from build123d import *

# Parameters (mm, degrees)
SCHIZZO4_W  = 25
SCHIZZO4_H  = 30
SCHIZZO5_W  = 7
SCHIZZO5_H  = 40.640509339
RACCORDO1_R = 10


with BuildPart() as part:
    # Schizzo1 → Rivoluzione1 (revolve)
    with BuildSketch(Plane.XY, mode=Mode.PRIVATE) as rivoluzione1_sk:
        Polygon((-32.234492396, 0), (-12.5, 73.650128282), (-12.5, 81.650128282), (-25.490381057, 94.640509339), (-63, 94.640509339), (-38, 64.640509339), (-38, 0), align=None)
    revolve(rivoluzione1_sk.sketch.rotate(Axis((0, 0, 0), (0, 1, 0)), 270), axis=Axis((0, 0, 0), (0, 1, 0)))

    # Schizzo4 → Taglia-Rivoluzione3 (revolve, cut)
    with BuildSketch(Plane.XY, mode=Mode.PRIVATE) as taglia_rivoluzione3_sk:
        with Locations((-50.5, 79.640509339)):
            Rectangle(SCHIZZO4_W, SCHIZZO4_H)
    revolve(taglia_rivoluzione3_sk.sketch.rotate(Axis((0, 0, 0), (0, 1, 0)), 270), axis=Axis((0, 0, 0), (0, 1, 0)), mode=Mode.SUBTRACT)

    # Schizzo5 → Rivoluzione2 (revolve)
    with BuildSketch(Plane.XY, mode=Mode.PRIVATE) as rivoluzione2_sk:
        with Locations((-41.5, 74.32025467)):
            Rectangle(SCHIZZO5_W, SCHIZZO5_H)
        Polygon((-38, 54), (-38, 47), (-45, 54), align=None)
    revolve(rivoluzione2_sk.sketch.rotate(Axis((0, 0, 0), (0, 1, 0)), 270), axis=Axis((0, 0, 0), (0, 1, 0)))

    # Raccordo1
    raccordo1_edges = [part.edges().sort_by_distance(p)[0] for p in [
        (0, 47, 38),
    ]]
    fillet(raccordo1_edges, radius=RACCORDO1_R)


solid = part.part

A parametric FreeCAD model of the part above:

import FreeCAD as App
import Part
import Sketcher

V = App.Vector
Q = App.Units.Quantity


def edges_at(feature, points):
    """Names of the edges that pass closest to the given points."""
    edges = feature.Shape.Edges
    near = lambda p: min(range(len(edges)), key=lambda i: edges[i].distToShape(Part.Vertex(*p))[0])
    return sorted({f"Edge{near(p) + 1}" for p in points})

doc = App.newDocument("Part")
body = doc.addObject("PartDesign::Body", "Body")

# Sketch on XY plane
sketch1 = body.newObject("Sketcher::SketchObject", "Sketch")
sketch1.AttachmentSupport = (doc.getObject("XY_Plane"), [""])
sketch1.MapMode = "FlatFace"
sketch1.addGeometry(Part.LineSegment(V(-32, 0, 0), V(-12, 74, 0)), False)
sketch1.addGeometry(Part.LineSegment(V(-12, 74, 0), V(-12, 82, 0)), False)
sketch1.addGeometry(Part.LineSegment(V(-12, 82, 0), V(-25, 95, 0)), False)
sketch1.addGeometry(Part.LineSegment(V(-25, 95, 0), V(-63, 95, 0)), False)
sketch1.addGeometry(Part.LineSegment(V(-63, 95, 0), V(-38, 65, 0)), False)
sketch1.addGeometry(Part.LineSegment(V(-38, 65, 0), V(-38, 0, 0)), False)
sketch1.addGeometry(Part.LineSegment(V(-38, 0, 0), V(-32, 0, 0)), False)
sketch1.addConstraint(Sketcher.Constraint("Coincident", 0, 2, 1, 1))
sketch1.addConstraint(Sketcher.Constraint("Coincident", 1, 2, 2, 1))
sketch1.addConstraint(Sketcher.Constraint("Coincident", 2, 2, 3, 1))
sketch1.addConstraint(Sketcher.Constraint("Coincident", 3, 2, 4, 1))
sketch1.addConstraint(Sketcher.Constraint("Coincident", 4, 2, 5, 1))
sketch1.addConstraint(Sketcher.Constraint("Coincident", 5, 2, 6, 1))
sketch1.addConstraint(Sketcher.Constraint("Coincident", 6, 2, 0, 1))
sketch1.addConstraint(Sketcher.Constraint("Vertical", 1))
sketch1.addConstraint(Sketcher.Constraint("Horizontal", 3))
sketch1.addConstraint(Sketcher.Constraint("Vertical", 5))
sketch1.addConstraint(Sketcher.Constraint("Horizontal", 6))
sketch1.addConstraint(Sketcher.Constraint("PointOnObject", 5, 2, -1))
sketch1.addConstraint(Sketcher.Constraint("DistanceY", 1, 1, 1, 2, 8.0))
sketch1.addConstraint(Sketcher.Constraint("Angle", 0, Q("75 deg")))
sketch1.addConstraint(Sketcher.Constraint("Angle", 2, Q("135 deg")))
sketch1.addConstraint(Sketcher.Constraint("DistanceX", 3, 2, -1, 1, 63.0))
sketch1.addConstraint(Sketcher.Constraint("DistanceX", 4, 2, -1, 1, 38.0))
sketch1.addConstraint(Sketcher.Constraint("DistanceY", 4, 2, 2, 2, 30.0))
sketch1.addConstraint(Sketcher.Constraint("DistanceX", 0, 2, -1, 1, 12.5))
sketch1.addConstraint(Sketcher.Constraint("DistanceX", 3, 2, 3, 1, 37.509619))
sketch1.addConstraint(Sketcher.Constraint("DistanceY", 5, 2, 5, 1, 64.640509))
revolution = body.newObject("PartDesign::Revolution", "Revolution")
revolution.Profile = sketch1
revolution.ReferenceAxis = (sketch1, ["V_Axis"])
revolution.Angle = 360

# Sketch on XY plane
sketch2 = body.newObject("Sketcher::SketchObject", "Sketch001")
sketch2.AttachmentSupport = (doc.getObject("XY_Plane"), [""])
sketch2.MapMode = "FlatFace"
sketch2.addGeometry(Part.LineSegment(V(-63, 95, 0), V(-63, 65, 0)), False)
sketch2.addGeometry(Part.LineSegment(V(-63, 65, 0), V(-38, 65, 0)), False)
sketch2.addGeometry(Part.LineSegment(V(-38, 65, 0), V(-38, 95, 0)), False)
sketch2.addGeometry(Part.LineSegment(V(-38, 95, 0), V(-63, 95, 0)), False)
sketch2.addConstraint(Sketcher.Constraint("Coincident", 0, 2, 1, 1))
sketch2.addConstraint(Sketcher.Constraint("Coincident", 1, 2, 2, 1))
sketch2.addConstraint(Sketcher.Constraint("Coincident", 2, 2, 3, 1))
sketch2.addConstraint(Sketcher.Constraint("Coincident", 3, 2, 0, 1))
sketch2.addConstraint(Sketcher.Constraint("Vertical", 0))
sketch2.addConstraint(Sketcher.Constraint("Horizontal", 1))
sketch2.addConstraint(Sketcher.Constraint("Vertical", 2))
sketch2.addConstraint(Sketcher.Constraint("Horizontal", 3))
sketch2.addConstraint(Sketcher.Constraint("DistanceX", 1, 1, 1, 2, 25.0))
sketch2.addConstraint(Sketcher.Constraint("DistanceY", 0, 2, 0, 1, 30.0))
sketch2.addConstraint(Sketcher.Constraint("DistanceX", 0, 2, -1, 1, 63.0))
sketch2.addConstraint(Sketcher.Constraint("DistanceY", -1, 1, 0, 2, 64.640509))
groove = body.newObject("PartDesign::Groove", "Groove")
groove.Profile = sketch2
groove.ReferenceAxis = (sketch2, ["V_Axis"])
groove.Angle = 360

# Sketch on XY plane
sketch3 = body.newObject("Sketcher::SketchObject", "Sketch002")
sketch3.AttachmentSupport = (doc.getObject("XY_Plane"), [""])
sketch3.MapMode = "FlatFace"
sketch3.addGeometry(Part.LineSegment(V(-38, 47, 0), V(-38, 95, 0)), False)
sketch3.addGeometry(Part.LineSegment(V(-38, 95, 0), V(-45, 95, 0)), False)
sketch3.addGeometry(Part.LineSegment(V(-45, 95, 0), V(-45, 54, 0)), False)
sketch3.addGeometry(Part.LineSegment(V(-45, 54, 0), V(-38, 47, 0)), False)
sketch3.addConstraint(Sketcher.Constraint("Coincident", 0, 2, 1, 1))
sketch3.addConstraint(Sketcher.Constraint("Coincident", 1, 2, 2, 1))
sketch3.addConstraint(Sketcher.Constraint("Coincident", 2, 2, 3, 1))
sketch3.addConstraint(Sketcher.Constraint("Coincident", 3, 2, 0, 1))
sketch3.addConstraint(Sketcher.Constraint("Vertical", 0))
sketch3.addConstraint(Sketcher.Constraint("Horizontal", 1))
sketch3.addConstraint(Sketcher.Constraint("Vertical", 2))
sketch3.addConstraint(Sketcher.Constraint("DistanceX", 1, 2, 1, 1, 7.0))
sketch3.addConstraint(Sketcher.Constraint("Angle", 3, Q("-45 deg")))
sketch3.addConstraint(Sketcher.Constraint("DistanceX", 0, 2, -1, 1, 38.0))
sketch3.addConstraint(Sketcher.Constraint("DistanceY", -1, 1, 2, 2, 54.0))
sketch3.addConstraint(Sketcher.Constraint("DistanceY", 0, 1, 0, 2, 47.640509))
revolution2 = body.newObject("PartDesign::Revolution", "Revolution001")
revolution2.Profile = sketch3
revolution2.ReferenceAxis = (sketch3, ["V_Axis"])
revolution2.Angle = 360
doc.recompute()

fillet = body.newObject("PartDesign::Fillet", "Fillet")
fillet.Base = (revolution2, edges_at(revolution2, [(0, 47, 38)]))
fillet.Radius = 10

doc.recompute()
